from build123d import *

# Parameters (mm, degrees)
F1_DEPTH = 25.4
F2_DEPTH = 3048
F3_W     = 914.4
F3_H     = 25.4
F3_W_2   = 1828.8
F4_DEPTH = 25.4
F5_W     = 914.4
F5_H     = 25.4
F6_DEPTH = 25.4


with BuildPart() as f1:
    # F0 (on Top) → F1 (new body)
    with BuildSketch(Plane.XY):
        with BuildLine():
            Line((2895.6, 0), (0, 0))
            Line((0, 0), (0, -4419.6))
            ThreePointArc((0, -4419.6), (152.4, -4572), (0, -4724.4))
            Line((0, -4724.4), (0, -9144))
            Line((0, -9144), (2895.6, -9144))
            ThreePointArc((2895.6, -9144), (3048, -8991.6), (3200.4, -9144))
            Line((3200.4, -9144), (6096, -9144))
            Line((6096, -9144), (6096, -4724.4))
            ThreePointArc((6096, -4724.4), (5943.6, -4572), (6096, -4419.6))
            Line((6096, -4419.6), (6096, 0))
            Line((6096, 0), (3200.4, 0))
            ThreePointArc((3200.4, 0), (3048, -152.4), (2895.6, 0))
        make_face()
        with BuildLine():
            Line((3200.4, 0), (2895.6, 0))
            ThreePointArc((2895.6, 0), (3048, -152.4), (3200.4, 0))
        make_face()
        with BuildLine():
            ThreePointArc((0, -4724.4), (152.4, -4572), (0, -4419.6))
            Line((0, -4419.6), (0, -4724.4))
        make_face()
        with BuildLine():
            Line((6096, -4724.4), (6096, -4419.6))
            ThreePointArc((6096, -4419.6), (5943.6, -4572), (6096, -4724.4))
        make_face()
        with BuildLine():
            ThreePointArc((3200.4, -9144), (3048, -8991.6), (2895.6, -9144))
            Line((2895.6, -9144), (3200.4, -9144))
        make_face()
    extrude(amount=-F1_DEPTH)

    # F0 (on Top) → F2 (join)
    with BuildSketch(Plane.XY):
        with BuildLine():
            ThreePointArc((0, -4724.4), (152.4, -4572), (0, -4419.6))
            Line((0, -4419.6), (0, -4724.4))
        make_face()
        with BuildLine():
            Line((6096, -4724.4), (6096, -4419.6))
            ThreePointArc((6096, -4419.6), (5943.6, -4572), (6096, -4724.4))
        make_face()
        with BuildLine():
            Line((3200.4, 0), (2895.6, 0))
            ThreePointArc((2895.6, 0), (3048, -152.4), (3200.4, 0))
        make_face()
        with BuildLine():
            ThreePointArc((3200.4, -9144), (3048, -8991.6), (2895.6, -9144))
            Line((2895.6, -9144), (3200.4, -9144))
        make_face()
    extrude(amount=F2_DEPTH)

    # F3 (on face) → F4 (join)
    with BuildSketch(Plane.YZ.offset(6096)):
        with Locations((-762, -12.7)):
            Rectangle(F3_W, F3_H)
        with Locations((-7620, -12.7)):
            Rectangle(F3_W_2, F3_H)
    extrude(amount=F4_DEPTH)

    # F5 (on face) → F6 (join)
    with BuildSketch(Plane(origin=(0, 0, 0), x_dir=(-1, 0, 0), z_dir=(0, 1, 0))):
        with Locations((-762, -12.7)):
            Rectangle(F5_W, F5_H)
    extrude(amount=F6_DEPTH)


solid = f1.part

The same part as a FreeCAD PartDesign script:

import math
import FreeCAD as App
import Part
import Sketcher
Q = App.Units.Quantity


def add_polygon(sketch, points):
    """Adds a closed chain of lines whose ends are joined by coincident constraints."""
    first, n = sketch.GeometryCount, len(points)
    for a, b in zip(points, points[1:] + points[:1]):
        sketch.addGeometry(Part.LineSegment(App.Vector(*a, 0), App.Vector(*b, 0)), False)
    for i in range(n):
        sketch.addConstraint(Sketcher.Constraint("Coincident", first + i, 2, first + (i + 1) % n, 1))

doc = App.newDocument("Part")
body = doc.addObject("PartDesign::Body", "Body")

# Sketch on XY plane
sketch1 = body.newObject("Sketcher::SketchObject", "Sketch")
sketch1.AttachmentSupport = (doc.getObject("XY_Plane"), [""])
sketch1.MapMode = "FlatFace"
add_polygon(sketch1, [(0, 0), (0, -9144), (6096, -9144), (6096, 0)])  # lines 0-3
sketch1.addConstraint(Sketcher.Constraint("Vertical", 0))
sketch1.addConstraint(Sketcher.Constraint("Horizontal", 1))
sketch1.addConstraint(Sketcher.Constraint("Vertical", 2))
sketch1.addConstraint(Sketcher.Constraint("Horizontal", 3))
sketch1.addConstraint(Sketcher.Constraint("Coincident", 3, 2, -1, 1))
sketch1.addConstraint(Sketcher.Constraint("DistanceX", 1, 1, 1, 2, Q("240 in")))
sketch1.addConstraint(Sketcher.Constraint("DistanceY", 0, 2, 0, 1, Q("360 in")))
pad1 = body.newObject("PartDesign::Pad", "Pad")
pad1.Profile = sketch1
pad1.Length = Q("1 in")
pad1.Reversed = True

# Sketch on XY plane
sketch2 = body.newObject("Sketcher::SketchObject", "Sketch001")
sketch2.AttachmentSupport = (doc.getObject("XY_Plane"), [""])
sketch2.MapMode = "FlatFace"
sketch2.addGeometry(Part.ArcOfCircle(Part.Circle(App.Vector(0, -4572, 0), App.Vector(0, 0, 1), 152.4), math.radians(-90), math.radians(90)), False)
sketch2.addGeometry(Part.LineSegment(App.Vector(0, -4419.6, 0), App.Vector(0, -4724.4, 0)), False)
sketch2.addGeometry(Part.LineSegment(App.Vector(6096, -4724.4, 0), App.Vector(6096, -4419.6, 0)), False)
sketch2.addGeometry(Part.ArcOfCircle(Part.Circle(App.Vector(6096, -4572, 0), App.Vector(0, 0, 1), 152.4), math.radians(90), math.radians(270)), False)
sketch2.addGeometry(Part.LineSegment(App.Vector(3200.4, 0, 0), App.Vector(2895.6, 0, 0)), False)
sketch2.addGeometry(Part.ArcOfCircle(Part.Circle(App.Vector(3048, 0, 0), App.Vector(0, 0, 1), 152.4), math.radians(180), math.radians(360)), False)
sketch2.addGeometry(Part.ArcOfCircle(Part.Circle(App.Vector(3048, -9144, 0), App.Vector(0, 0, 1), 152.4), math.radians(0), math.radians(180)), False)
sketch2.addGeometry(Part.LineSegment(App.Vector(2895.6, -9144, 0), App.Vector(3200.4, -9144, 0)), False)
sketch2.addConstraint(Sketcher.Constraint("Coincident", 0, 1, 1, 2))
sketch2.addConstraint(Sketcher.Constraint("Coincident", 1, 1, 0, 2))
sketch2.addConstraint(Sketcher.Constraint("Coincident", 2, 1, 3, 2))
sketch2.addConstraint(Sketcher.Constraint("Coincident", 3, 1, 2, 2))
sketch2.addConstraint(Sketcher.Constraint("Coincident", 4, 1, 5, 2))
sketch2.addConstraint(Sketcher.Constraint("Coincident", 5, 1, 4, 2))
sketch2.addConstraint(Sketcher.Constraint("Coincident", 6, 1, 7, 2))
sketch2.addConstraint(Sketcher.Constraint("Coincident", 7, 1, 6, 2))
sketch2.addConstraint(Sketcher.Constraint("Vertical", 1))
sketch2.addConstraint(Sketcher.Constraint("Vertical", 2))
sketch2.addConstraint(Sketcher.Constraint("Horizontal", 4))
sketch2.addConstraint(Sketcher.Constraint("Horizontal", 7))
sketch2.addConstraint(Sketcher.Constraint("Equal", 0, 3))
sketch2.addConstraint(Sketcher.Constraint("Equal", 3, 5))
sketch2.addConstraint(Sketcher.Constraint("Equal", 5, 6))
sketch2.addConstraint(Sketcher.Constraint("PointOnObject", 0, 3, -2))
sketch2.addConstraint(Sketcher.Constraint("PointOnObject", 5, 3, -1))
sketch2.addConstraint(Sketcher.Constraint("PointOnObject", 0, 1, -2))
sketch2.addConstraint(Sketcher.Constraint("PointOnObject", 4, 1, -1))
sketch2.addConstraint(Sketcher.Constraint("Horizontal", 0, 3, 3, 3))
sketch2.addConstraint(Sketcher.Constraint("Vertical", 5, 3, 6, 3))
sketch2.addConstraint(Sketcher.Constraint("Vertical", 3, 3, 2, 1))
sketch2.addConstraint(Sketcher.Constraint("Radius", 0, Q("6 in")))
sketch2.addConstraint(Sketcher.Constraint("DistanceY", 0, 3, -1, 1, Q("180 in")))
sketch2.addConstraint(Sketcher.Constraint("DistanceX", -1, 1, 3, 3, Q("240 in")))
sketch2.addConstraint(Sketcher.Constraint("DistanceX", -1, 1, 5, 3, Q("120 in")))
sketch2.addConstraint(Sketcher.Constraint("DistanceY", 6, 3, -1, 1, Q("360 in")))
sketch2.addConstraint(Sketcher.Constraint("DistanceY", 6, 1, -1, 1, Q("360 in")))
pad2 = body.newObject("PartDesign::Pad", "Pad001")
pad2.Profile = sketch2
pad2.Length = Q("120 in")

# Sketch on YZ plane
sketch3 = body.newObject("Sketcher::SketchObject", "Sketch002")
sketch3.AttachmentSupport = (doc.getObject("YZ_Plane"), [""])
sketch3.MapMode = "FlatFace"
sketch3.AttachmentOffset = App.Placement(App.Vector(0, 0, 240 * 25.4), App.Rotation())
add_polygon(sketch3, [(-1219.2, 0), (-1219.2, -25.4), (-304.8, -25.4), (-304.8, 0)])  # lines 0-3
add_polygon(sketch3, [(-8534.4, 0), (-8534.4, -25.4), (-6705.6, -25.4), (-6705.6, 0)])  # lines 4-7
sketch3.addConstraint(Sketcher.Constraint("Vertical", 0))
sketch3.addConstraint(Sketcher.Constraint("Horizontal", 1))
sketch3.addConstraint(Sketcher.Constraint("Vertical", 2))
sketch3.addConstraint(Sketcher.Constraint("Horizontal", 3))
sketch3.addConstraint(Sketcher.Constraint("Vertical", 4))
sketch3.addConstraint(Sketcher.Constraint("Horizontal", 5))
sketch3.addConstraint(Sketcher.Constraint("Vertical", 6))
sketch3.addConstraint(Sketcher.Constraint("Horizontal", 7))
sketch3.addConstraint(Sketcher.Constraint("PointOnObject", 2, 2, -1))
sketch3.addConstraint(Sketcher.Constraint("PointOnObject", 6, 2, -1))
sketch3.addConstraint(Sketcher.Constraint("Horizontal", 1, 2, 4, 2))
sketch3.addConstraint(Sketcher.Constraint("DistanceX", 1, 1, 1, 2, Q("36 in")))
sketch3.addConstraint(Sketcher.Constraint("DistanceX", 5, 1, 5, 2, Q("72 in")))
sketch3.addConstraint(Sketcher.Constraint("DistanceY", 0, 2, 0, 1, Q("1 in")))
sketch3.addConstraint(Sketcher.Constraint("DistanceX", 0, 2, -1, 1, Q("48 in")))
sketch3.addConstraint(Sketcher.Constraint("DistanceX", 4, 2, -1, 1, Q("336 in")))
pad3 = body.newObject("PartDesign::Pad", "Pad002")
pad3.Profile = sketch3
pad3.Length = Q("1 in")

# Sketch on XZ plane
sketch4 = body.newObject("Sketcher::SketchObject", "Sketch003")
sketch4.AttachmentSupport = (doc.getObject("XZ_Plane"), [""])
sketch4.MapMode = "FlatFace"
add_polygon(sketch4, [(1219.2, 0), (1219.2, -25.4), (304.8, -25.4), (304.8, 0)])  # lines 0-3
sketch4.addConstraint(Sketcher.Constraint("Vertical", 0))
sketch4.addConstraint(Sketcher.Constraint("Horizontal", 1))
sketch4.addConstraint(Sketcher.Constraint("Vertical", 2))
sketch4.addConstraint(Sketcher.Constraint("Horizontal", 3))
sketch4.addConstraint(Sketcher.Constraint("PointOnObject", 2, 2, -1))
sketch4.addConstraint(Sketcher.Constraint("DistanceX", 1, 2, 1, 1, Q("36 in")))
sketch4.addConstraint(Sketcher.Constraint("DistanceY", 0, 2, 0, 1, Q("1 in")))
sketch4.addConstraint(Sketcher.Constraint("DistanceX", -1, 1, 0, 2, Q("48 in")))
pad4 = body.newObject("PartDesign::Pad", "Pad003")
pad4.Profile = sketch4
pad4.Length = Q("1 in")
pad4.Reversed = True

doc.recompute()
